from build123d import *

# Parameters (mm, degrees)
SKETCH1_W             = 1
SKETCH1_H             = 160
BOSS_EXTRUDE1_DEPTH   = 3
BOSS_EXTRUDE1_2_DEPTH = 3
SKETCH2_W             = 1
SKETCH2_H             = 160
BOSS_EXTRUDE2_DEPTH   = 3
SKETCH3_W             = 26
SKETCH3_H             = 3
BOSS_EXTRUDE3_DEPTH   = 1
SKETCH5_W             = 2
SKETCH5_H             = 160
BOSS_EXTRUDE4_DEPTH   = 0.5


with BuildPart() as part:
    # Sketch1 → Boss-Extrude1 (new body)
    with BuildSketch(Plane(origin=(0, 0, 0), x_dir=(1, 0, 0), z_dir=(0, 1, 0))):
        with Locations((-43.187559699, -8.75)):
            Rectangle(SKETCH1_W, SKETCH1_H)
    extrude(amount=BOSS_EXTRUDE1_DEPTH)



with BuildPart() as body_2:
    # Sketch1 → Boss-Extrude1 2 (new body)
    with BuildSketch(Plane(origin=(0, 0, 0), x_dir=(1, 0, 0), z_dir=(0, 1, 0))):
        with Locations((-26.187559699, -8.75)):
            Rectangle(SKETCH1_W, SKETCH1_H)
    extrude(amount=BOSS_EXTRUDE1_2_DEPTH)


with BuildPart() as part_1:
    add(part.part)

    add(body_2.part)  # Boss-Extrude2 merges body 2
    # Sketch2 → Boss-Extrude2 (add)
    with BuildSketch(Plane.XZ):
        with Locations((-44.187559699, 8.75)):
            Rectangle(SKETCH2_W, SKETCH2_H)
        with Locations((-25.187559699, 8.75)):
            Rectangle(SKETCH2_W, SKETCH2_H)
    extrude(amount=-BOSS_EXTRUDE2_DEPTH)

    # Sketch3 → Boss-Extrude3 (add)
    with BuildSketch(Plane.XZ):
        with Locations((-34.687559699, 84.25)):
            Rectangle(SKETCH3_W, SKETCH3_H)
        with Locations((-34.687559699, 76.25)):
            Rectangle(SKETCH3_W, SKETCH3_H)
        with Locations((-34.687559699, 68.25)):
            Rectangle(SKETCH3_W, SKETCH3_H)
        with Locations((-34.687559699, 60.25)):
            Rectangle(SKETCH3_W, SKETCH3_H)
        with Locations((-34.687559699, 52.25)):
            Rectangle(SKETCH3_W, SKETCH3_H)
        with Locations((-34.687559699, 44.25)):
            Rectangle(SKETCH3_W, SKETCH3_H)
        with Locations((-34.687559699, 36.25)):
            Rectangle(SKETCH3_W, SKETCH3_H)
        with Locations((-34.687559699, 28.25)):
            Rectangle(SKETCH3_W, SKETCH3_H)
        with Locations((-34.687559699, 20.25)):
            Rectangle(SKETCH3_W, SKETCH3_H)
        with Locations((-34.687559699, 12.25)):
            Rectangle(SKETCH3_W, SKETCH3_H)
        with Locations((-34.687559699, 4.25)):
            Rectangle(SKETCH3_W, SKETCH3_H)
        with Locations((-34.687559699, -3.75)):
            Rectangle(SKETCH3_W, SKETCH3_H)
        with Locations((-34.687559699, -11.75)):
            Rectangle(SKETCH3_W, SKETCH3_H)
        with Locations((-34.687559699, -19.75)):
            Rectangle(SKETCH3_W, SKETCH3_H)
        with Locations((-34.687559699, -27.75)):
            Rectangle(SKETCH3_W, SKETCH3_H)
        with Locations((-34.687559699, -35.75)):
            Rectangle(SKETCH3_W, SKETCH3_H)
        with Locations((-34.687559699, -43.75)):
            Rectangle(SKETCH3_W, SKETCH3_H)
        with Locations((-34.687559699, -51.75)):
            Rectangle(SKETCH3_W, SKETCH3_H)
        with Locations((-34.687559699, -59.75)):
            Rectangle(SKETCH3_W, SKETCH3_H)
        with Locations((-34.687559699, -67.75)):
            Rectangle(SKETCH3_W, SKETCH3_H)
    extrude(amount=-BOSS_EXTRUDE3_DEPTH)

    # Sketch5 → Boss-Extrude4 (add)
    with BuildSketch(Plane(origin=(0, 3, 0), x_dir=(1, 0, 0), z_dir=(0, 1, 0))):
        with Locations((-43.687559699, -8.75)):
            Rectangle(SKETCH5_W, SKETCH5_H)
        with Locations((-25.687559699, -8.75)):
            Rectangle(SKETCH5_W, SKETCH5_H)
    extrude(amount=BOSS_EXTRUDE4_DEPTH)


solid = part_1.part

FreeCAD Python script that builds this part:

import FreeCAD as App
import Part
import Sketcher
Q = App.Units.Quantity

doc = App.newDocument("Part")
body = doc.addObject("PartDesign::Body", "Body")

sketch1 = body.newObject("Sketcher::SketchObject", "Sketch")
sketch1.AttachmentSupport = (doc.getObject("XZ_Plane"), [""])
sketch1.MapMode = "FlatFace"
sketch1.addGeometry([
    Part.LineSegment(App.Vector(-43.7, -71.2, 0), App.Vector(-43.7, 88.8, 0)),
    Part.LineSegment(App.Vector(-43.7, 88.8, 0), App.Vector(-42.7, 88.8, 0)),
    Part.LineSegment(App.Vector(-42.7, 88.8, 0), App.Vector(-42.7, -71.2, 0)),
    Part.LineSegment(App.Vector(-42.7, -71.2, 0), App.Vector(-43.7, -71.2, 0)),
], False)
sketch1.addConstraint([
    Sketcher.Constraint("Coincident", 0, 2, 1, 1),
    Sketcher.Constraint("Coincident", 1, 2, 2, 1),
    Sketcher.Constraint("Coincident", 2, 2, 3, 1),
    Sketcher.Constraint("Coincident", 3, 2, 0, 1),
    Sketcher.Constraint("Vertical", 0),
    Sketcher.Constraint("Horizontal", 1),
    Sketcher.Constraint("Vertical", 2),
    Sketcher.Constraint("Horizontal", 3),
    Sketcher.Constraint("DistanceX", 1, 1, 1, 2, Q("1 mm")),
    Sketcher.Constraint("DistanceY", 0, 1, 0, 2, Q("160 mm")),
    Sketcher.Constraint("DistanceY", -1, 1, 0, 2, Q("88.75 mm")),
    Sketcher.Constraint("DistanceX", 0, 2, -1, 1, Q("43.68756 mm")),
])
pad1 = body.newObject("PartDesign::Pad", "Pad")
pad1.Profile = sketch1
pad1.Length = 3
pad1.Reversed = True
body2 = doc.addObject("PartDesign::Body", "Body001")

sketch2 = body2.newObject("Sketcher::SketchObject", "Sketch001")
sketch2.AttachmentSupport = (doc.getObject("XZ_Plane001"), [""])
sketch2.MapMode = "FlatFace"
sketch2.addGeometry([
    Part.LineSegment(App.Vector(-26.7, -71.2, 0), App.Vector(-26.7, 88.8, 0)),
    Part.LineSegment(App.Vector(-26.7, 88.8, 0), App.Vector(-25.7, 88.8, 0)),
    Part.LineSegment(App.Vector(-25.7, 88.8, 0), App.Vector(-25.7, -71.2, 0)),
    Part.LineSegment(App.Vector(-25.7, -71.2, 0), App.Vector(-26.7, -71.2, 0)),
], False)
sketch2.addConstraint([
    Sketcher.Constraint("Coincident", 0, 2, 1, 1),
    Sketcher.Constraint("Coincident", 1, 2, 2, 1),
    Sketcher.Constraint("Coincident", 2, 2, 3, 1),
    Sketcher.Constraint("Coincident", 3, 2, 0, 1),
    Sketcher.Constraint("Vertical", 0),
    Sketcher.Constraint("Horizontal", 1),
    Sketcher.Constraint("Vertical", 2),
    Sketcher.Constraint("Horizontal", 3),
    Sketcher.Constraint("DistanceX", 1, 1, 1, 2, Q("1 mm")),
    Sketcher.Constraint("DistanceY", 0, 1, 0, 2, Q("160 mm")),
    Sketcher.Constraint("DistanceY", -1, 1, 0, 2, Q("88.75 mm")),
    Sketcher.Constraint("DistanceX", 0, 2, -1, 1, Q("26.68756 mm")),
])
pad2 = body2.newObject("PartDesign::Pad", "Pad001")
pad2.Profile = sketch2
pad2.Length = 3
pad2.Reversed = True
body.AllowCompound = True
doc.recompute()

boolean = body.newObject("PartDesign::Boolean", "Boolean")
boolean.Type = "Fuse"
boolean.addObjects([body2])

sketch3 = body.newObject("Sketcher::SketchObject", "Sketch002")
sketch3.AttachmentSupport = (doc.getObject("XZ_Plane"), [""])
sketch3.MapMode = "FlatFace"
sketch3.addGeometry([
    Part.LineSegment(App.Vector(-44.7, 88.8, 0), App.Vector(-44.7, -71.2, 0)),
    Part.LineSegment(App.Vector(-44.7, -71.2, 0), App.Vector(-43.7, -71.2, 0)),
    Part.LineSegment(App.Vector(-43.7, -71.2, 0), App.Vector(-43.7, 88.8, 0)),
    Part.LineSegment(App.Vector(-43.7, 88.8, 0), App.Vector(-44.7, 88.8, 0)),
    Part.LineSegment(App.Vector(-25.7, 88.8, 0), App.Vector(-25.7, -71.2, 0)),
    Part.LineSegment(App.Vector(-25.7, -71.2, 0), App.Vector(-24.7, -71.2, 0)),
    Part.LineSegment(App.Vector(-24.7, -71.2, 0), App.Vector(-24.7, 88.8, 0)),
    Part.LineSegment(App.Vector(-24.7, 88.8, 0), App.Vector(-25.7, 88.8, 0)),
], False)
sketch3.addConstraint([
    Sketcher.Constraint("Coincident", 0, 2, 1, 1),
    Sketcher.Constraint("Coincident", 1, 2, 2, 1),
    Sketcher.Constraint("Coincident", 2, 2, 3, 1),
    Sketcher.Constraint("Coincident", 3, 2, 0, 1),
    Sketcher.Constraint("Coincident", 4, 2, 5, 1),
    Sketcher.Constraint("Coincident", 5, 2, 6, 1),
    Sketcher.Constraint("Coincident", 6, 2, 7, 1),
    Sketcher.Constraint("Coincident", 7, 2, 4, 1),
    Sketcher.Constraint("Vertical", 0),
    Sketcher.Constraint("Horizontal", 1),
    Sketcher.Constraint("Vertical", 2),
    Sketcher.Constraint("Horizontal", 3),
    Sketcher.Constraint("Vertical", 4),
    Sketcher.Constraint("Horizontal", 5),
    Sketcher.Constraint("Vertical", 6),
    Sketcher.Constraint("Horizontal", 7),
    Sketcher.Constraint("Horizontal", 1, 2, 4, 2),
    Sketcher.Constraint("Horizontal", 3, 2, 6, 2),
    Sketcher.Constraint("Equal", 3, 5),
    Sketcher.Constraint("DistanceX", 1, 1, 1, 2, Q("1 mm")),
    Sketcher.Constraint("DistanceY", 0, 2, 0, 1, Q("160 mm")),
    Sketcher.Constraint("DistanceX", 1, 2, 4, 2, Q("18 mm")),
    Sketcher.Constraint("DistanceY", 0, 2, -1, 1, Q("71.25 mm")),
    Sketcher.Constraint("DistanceX", 0, 2, -1, 1, Q("44.68756 mm")),
])
pad3 = body.newObject("PartDesign::Pad", "Pad002")
pad3.Profile = sketch3
pad3.Length = 3
pad3.Reversed = True

sketch4 = body.newObject("Sketcher::SketchObject", "Sketch003")
sketch4.AttachmentSupport = (doc.getObject("XZ_Plane"), [""])
sketch4.MapMode = "FlatFace"
sketch4.addGeometry([
    Part.LineSegment(App.Vector(-47.7, 85.8, 0), App.Vector(-47.7, 82.8, 0)),
    Part.LineSegment(App.Vector(-47.7, 82.8, 0), App.Vector(-21.7, 82.8, 0)),
    Part.LineSegment(App.Vector(-21.7, 82.8, 0), App.Vector(-21.7, 85.8, 0)),
    Part.LineSegment(App.Vector(-21.7, 85.8, 0), App.Vector(-47.7, 85.8, 0)),
    Part.LineSegment(App.Vector(-47.7, 77.8, 0), App.Vector(-47.7, 74.8, 0)),
    Part.LineSegment(App.Vector(-47.7, 74.8, 0), App.Vector(-21.7, 74.8, 0)),
    Part.LineSegment(App.Vector(-21.7, 74.8, 0), App.Vector(-21.7, 77.8, 0)),
    Part.LineSegment(App.Vector(-21.7, 77.8, 0), App.Vector(-47.7, 77.8, 0)),
    Part.LineSegment(App.Vector(-47.7, 69.8, 0), App.Vector(-47.7, 66.8, 0)),
    Part.LineSegment(App.Vector(-47.7, 66.8, 0), App.Vector(-21.7, 66.8, 0)),
    Part.LineSegment(App.Vector(-21.7, 66.8, 0), App.Vector(-21.7, 69.8, 0)),
    Part.LineSegment(App.Vector(-21.7, 69.8, 0), App.Vector(-47.7, 69.8, 0)),
    Part.LineSegment(App.Vector(-47.7, 61.8, 0), App.Vector(-47.7, 58.8, 0)),
    Part.LineSegment(App.Vector(-47.7, 58.8, 0), App.Vector(-21.7, 58.8, 0)),
    Part.LineSegment(App.Vector(-21.7, 58.8, 0), App.Vector(-21.7, 61.8, 0)),
    Part.LineSegment(App.Vector(-21.7, 61.8, 0), App.Vector(-47.7, 61.8, 0)),
    Part.LineSegment(App.Vector(-47.7, 53.8, 0), App.Vector(-47.7, 50.8, 0)),
    Part.LineSegment(App.Vector(-47.7, 50.8, 0), App.Vector(-21.7, 50.8, 0)),
    Part.LineSegment(App.Vector(-21.7, 50.8, 0), App.Vector(-21.7, 53.8, 0)),
    Part.LineSegment(App.Vector(-21.7, 53.8, 0), App.Vector(-47.7, 53.8, 0)),
    Part.LineSegment(App.Vector(-47.7, 45.8, 0), App.Vector(-47.7, 42.8, 0)),
    Part.LineSegment(App.Vector(-47.7, 42.8, 0), App.Vector(-21.7, 42.8, 0)),
    Part.LineSegment(App.Vector(-21.7, 42.8, 0), App.Vector(-21.7, 45.8, 0)),
    Part.LineSegment(App.Vector(-21.7, 45.8, 0), App.Vector(-47.7, 45.8, 0)),
    Part.LineSegment(App.Vector(-47.7, 37.8, 0), App.Vector(-47.7, 34.8, 0)),
    Part.LineSegment(App.Vector(-47.7, 34.8, 0), App.Vector(-21.7, 34.8, 0)),
    Part.LineSegment(App.Vector(-21.7, 34.8, 0), App.Vector(-21.7, 37.8, 0)),
    Part.LineSegment(App.Vector(-21.7, 37.8, 0), App.Vector(-47.7, 37.8, 0)),
    Part.LineSegment(App.Vector(-47.7, 29.8, 0), App.Vector(-47.7, 26.8, 0)),
    Part.LineSegment(App.Vector(-47.7, 26.8, 0), App.Vector(-21.7, 26.8, 0)),
    Part.LineSegment(App.Vector(-21.7, 26.8, 0), App.Vector(-21.7, 29.8, 0)),
    Part.LineSegment(App.Vector(-21.7, 29.8, 0), App.Vector(-47.7, 29.8, 0)),
    Part.LineSegment(App.Vector(-47.7, 21.8, 0), App.Vector(-47.7, 18.8, 0)),
    Part.LineSegment(App.Vector(-47.7, 18.8, 0), App.Vector(-21.7, 18.8, 0)),
    Part.LineSegment(App.Vector(-21.7, 18.8, 0), App.Vector(-21.7, 21.8, 0)),
    Part.LineSegment(App.Vector(-21.7, 21.8, 0), App.Vector(-47.7, 21.8, 0)),
    Part.LineSegment(App.Vector(-47.7, 13.8, 0), App.Vector(-47.7, 10.8, 0)),
    Part.LineSegment(App.Vector(-47.7, 10.8, 0), App.Vector(-21.7, 10.8, 0)),
    Part.LineSegment(App.Vector(-21.7, 10.8, 0), App.Vector(-21.7, 13.8, 0)),
    Part.LineSegment(App.Vector(-21.7, 13.8, 0), App.Vector(-47.7, 13.8, 0)),
    Part.LineSegment(App.Vector(-47.7, 5.8, 0), App.Vector(-47.7, 2.8, 0)),
    Part.LineSegment(App.Vector(-47.7, 2.8, 0), App.Vector(-21.7, 2.8, 0)),
    Part.LineSegment(App.Vector(-21.7, 2.8, 0), App.Vector(-21.7, 5.8, 0)),
    Part.LineSegment(App.Vector(-21.7, 5.8, 0), App.Vector(-47.7, 5.8, 0)),
    Part.LineSegment(App.Vector(-47.7, -2.2, 0), App.Vector(-47.7, -5.2, 0)),
    Part.LineSegment(App.Vector(-47.7, -5.2, 0), App.Vector(-21.7, -5.2, 0)),
    Part.LineSegment(App.Vector(-21.7, -5.2, 0), App.Vector(-21.7, -2.2, 0)),
    Part.LineSegment(App.Vector(-21.7, -2.2, 0), App.Vector(-47.7, -2.2, 0)),
    Part.LineSegment(App.Vector(-47.7, -10.2, 0), App.Vector(-47.7, -13.2, 0)),
    Part.LineSegment(App.Vector(-47.7, -13.2, 0), App.Vector(-21.7, -13.2, 0)),
    Part.LineSegment(App.Vector(-21.7, -13.2, 0), App.Vector(-21.7, -10.2, 0)),
    Part.LineSegment(App.Vector(-21.7, -10.2, 0), App.Vector(-47.7, -10.2, 0)),
    Part.LineSegment(App.Vector(-47.7, -18.2, 0), App.Vector(-47.7, -21.2, 0)),
    Part.LineSegment(App.Vector(-47.7, -21.2, 0), App.Vector(-21.7, -21.2, 0)),
    Part.LineSegment(App.Vector(-21.7, -21.2, 0), App.Vector(-21.7, -18.2, 0)),
    Part.LineSegment(App.Vector(-21.7, -18.2, 0), App.Vector(-47.7, -18.2, 0)),
    Part.LineSegment(App.Vector(-47.7, -26.2, 0), App.Vector(-47.7, -29.2, 0)),
    Part.LineSegment(App.Vector(-47.7, -29.2, 0), App.Vector(-21.7, -29.2, 0)),
    Part.LineSegment(App.Vector(-21.7, -29.2, 0), App.Vector(-21.7, -26.2, 0)),
    Part.LineSegment(App.Vector(-21.7, -26.2, 0), App.Vector(-47.7, -26.2, 0)),
    Part.LineSegment(App.Vector(-47.7, -34.2, 0), App.Vector(-47.7, -37.2, 0)),
    Part.LineSegment(App.Vector(-47.7, -37.2, 0), App.Vector(-21.7, -37.2, 0)),
    Part.LineSegment(App.Vector(-21.7, -37.2, 0), App.Vector(-21.7, -34.2, 0)),
    Part.LineSegment(App.Vector(-21.7, -34.2, 0), App.Vector(-47.7, -34.2, 0)),
    Part.LineSegment(App.Vector(-47.7, -42.2, 0), App.Vector(-47.7, -45.2, 0)),
    Part.LineSegment(App.Vector(-47.7, -45.2, 0), App.Vector(-21.7, -45.2, 0)),
    Part.LineSegment(App.Vector(-21.7, -45.2, 0), App.Vector(-21.7, -42.2, 0)),
    Part.LineSegment(App.Vector(-21.7, -42.2, 0), App.Vector(-47.7, -42.2, 0)),
    Part.LineSegment(App.Vector(-47.7, -50.2, 0), App.Vector(-47.7, -53.2, 0)),
    Part.LineSegment(App.Vector(-47.7, -53.2, 0), App.Vector(-21.7, -53.2, 0)),
    Part.LineSegment(App.Vector(-21.7, -53.2, 0), App.Vector(-21.7, -50.2, 0)),
    Part.LineSegment(App.Vector(-21.7, -50.2, 0), App.Vector(-47.7, -50.2, 0)),
    Part.LineSegment(App.Vector(-47.7, -58.2, 0), App.Vector(-47.7, -61.2, 0)),
    Part.LineSegment(App.Vector(-47.7, -61.2, 0), App.Vector(-21.7, -61.2, 0)),
    Part.LineSegment(App.Vector(-21.7, -61.2, 0), App.Vector(-21.7, -58.2, 0)),
    Part.LineSegment(App.Vector(-21.7, -58.2, 0), App.Vector(-47.7, -58.2, 0)),
    Part.LineSegment(App.Vector(-47.7, -66.2, 0), App.Vector(-47.7, -69.2, 0)),
    Part.LineSegment(App.Vector(-47.7, -69.2, 0), App.Vector(-21.7, -69.2, 0)),
    Part.LineSegment(App.Vector(-21.7, -69.2, 0), App.Vector(-21.7, -66.2, 0)),
    Part.LineSegment(App.Vector(-21.7, -66.2, 0), App.Vector(-47.7, -66.2, 0)),
], False)
sketch4.addConstraint([
    Sketcher.Constraint("Coincident", 0, 2, 1, 1),
    Sketcher.Constraint("Coincident", 1, 2, 2, 1),
    Sketcher.Constraint("Coincident", 2, 2, 3, 1),
    Sketcher.Constraint("Coincident", 3, 2, 0, 1),
    Sketcher.Constraint("Coincident", 4, 2, 5, 1),
    Sketcher.Constraint("Coincident", 5, 2, 6, 1),
    Sketcher.Constraint("Coincident", 6, 2, 7, 1),
    Sketcher.Constraint("Coincident", 7, 2, 4, 1),
    Sketcher.Constraint("Coincident", 8, 2, 9, 1),
    Sketcher.Constraint("Coincident", 9, 2, 10, 1),
    Sketcher.Constraint("Coincident", 10, 2, 11, 1),
    Sketcher.Constraint("Coincident", 11, 2, 8, 1),
    Sketcher.Constraint("Coincident", 12, 2, 13, 1),
    Sketcher.Constraint("Coincident", 13, 2, 14, 1),
    Sketcher.Constraint("Coincident", 14, 2, 15, 1),
    Sketcher.Constraint("Coincident", 15, 2, 12, 1),
    Sketcher.Constraint("Coincident", 16, 2, 17, 1),
    Sketcher.Constraint("Coincident", 17, 2, 18, 1),
    Sketcher.Constraint("Coincident", 18, 2, 19, 1),
    Sketcher.Constraint("Coincident", 19, 2, 16, 1),
    Sketcher.Constraint("Coincident", 20, 2, 21, 1),
    Sketcher.Constraint("Coincident", 21, 2, 22, 1),
    Sketcher.Constraint("Coincident", 22, 2, 23, 1),
    Sketcher.Constraint("Coincident", 23, 2, 20, 1),
    Sketcher.Constraint("Coincident", 24, 2, 25, 1),
    Sketcher.Constraint("Coincident", 25, 2, 26, 1),
    Sketcher.Constraint("Coincident", 26, 2, 27, 1),
    Sketcher.Constraint("Coincident", 27, 2, 24, 1),
    Sketcher.Constraint("Coincident", 28, 2, 29, 1),
    Sketcher.Constraint("Coincident", 29, 2, 30, 1),
    Sketcher.Constraint("Coincident", 30, 2, 31, 1),
    Sketcher.Constraint("Coincident", 31, 2, 28, 1),
    Sketcher.Constraint("Coincident", 32, 2, 33, 1),
    Sketcher.Constraint("Coincident", 33, 2, 34, 1),
    Sketcher.Constraint("Coincident", 34, 2, 35, 1),
    Sketcher.Constraint("Coincident", 35, 2, 32, 1),
    Sketcher.Constraint("Coincident", 36, 2, 37, 1),
    Sketcher.Constraint("Coincident", 37, 2, 38, 1),
    Sketcher.Constraint("Coincident", 38, 2, 39, 1),
    Sketcher.Constraint("Coincident", 39, 2, 36, 1),
    Sketcher.Constraint("Coincident", 40, 2, 41, 1),
    Sketcher.Constraint("Coincident", 41, 2, 42, 1),
    Sketcher.Constraint("Coincident", 42, 2, 43, 1),
    Sketcher.Constraint("Coincident", 43, 2, 40, 1),
    Sketcher.Constraint("Coincident", 44, 2, 45, 1),
    Sketcher.Constraint("Coincident", 45, 2, 46, 1),
    Sketcher.Constraint("Coincident", 46, 2, 47, 1),
    Sketcher.Constraint("Coincident", 47, 2, 44, 1),
    Sketcher.Constraint("Coincident", 48, 2, 49, 1),
    Sketcher.Constraint("Coincident", 49, 2, 50, 1),
    Sketcher.Constraint("Coincident", 50, 2, 51, 1),
    Sketcher.Constraint("Coincident", 51, 2, 48, 1),
    Sketcher.Constraint("Coincident", 52, 2, 53, 1),
    Sketcher.Constraint("Coincident", 53, 2, 54, 1),
    Sketcher.Constraint("Coincident", 54, 2, 55, 1),
    Sketcher.Constraint("Coincident", 55, 2, 52, 1),
    Sketcher.Constraint("Coincident", 56, 2, 57, 1),
    Sketcher.Constraint("Coincident", 57, 2, 58, 1),
    Sketcher.Constraint("Coincident", 58, 2, 59, 1),
    Sketcher.Constraint("Coincident", 59, 2, 56, 1),
    Sketcher.Constraint("Coincident", 60, 2, 61, 1),
    Sketcher.Constraint("Coincident", 61, 2, 62, 1),
    Sketcher.Constraint("Coincident", 62, 2, 63, 1),
    Sketcher.Constraint("Coincident", 63, 2, 60, 1),
    Sketcher.Constraint("Coincident", 64, 2, 65, 1),
    Sketcher.Constraint("Coincident", 65, 2, 66, 1),
    Sketcher.Constraint("Coincident", 66, 2, 67, 1),
    Sketcher.Constraint("Coincident", 67, 2, 64, 1),
    Sketcher.Constraint("Coincident", 68, 2, 69, 1),
    Sketcher.Constraint("Coincident", 69, 2, 70, 1),
    Sketcher.Constraint("Coincident", 70, 2, 71, 1),
    Sketcher.Constraint("Coincident", 71, 2, 68, 1),
    Sketcher.Constraint("Coincident", 72, 2, 73, 1),
    Sketcher.Constraint("Coincident", 73, 2, 74, 1),
    Sketcher.Constraint("Coincident", 74, 2, 75, 1),
    Sketcher.Constraint("Coincident", 75, 2, 72, 1),
    Sketcher.Constraint("Coincident", 76, 2, 77, 1),
    Sketcher.Constraint("Coincident", 77, 2, 78, 1),
    Sketcher.Constraint("Coincident", 78, 2, 79, 1),
    Sketcher.Constraint("Coincident", 79, 2, 76, 1),
    Sketcher.Constraint("Vertical", 0),
    Sketcher.Constraint("Horizontal", 1),
    Sketcher.Constraint("Vertical", 2),
    Sketcher.Constraint("Horizontal", 3),
    Sketcher.Constraint("Vertical", 4),
    Sketcher.Constraint("Horizontal", 5),
    Sketcher.Constraint("Vertical", 6),
    Sketcher.Constraint("Horizontal", 7),
    Sketcher.Constraint("Vertical", 8),
    Sketcher.Constraint("Horizontal", 9),
    Sketcher.Constraint("Vertical", 10),
    Sketcher.Constraint("Horizontal", 11),
    Sketcher.Constraint("Vertical", 12),
    Sketcher.Constraint("Horizontal", 13),
    Sketcher.Constraint("Vertical", 14),
    Sketcher.Constraint("Horizontal", 15),
    Sketcher.Constraint("Vertical", 16),
    Sketcher.Constraint("Horizontal", 17),
    Sketcher.Constraint("Vertical", 18),
    Sketcher.Constraint("Horizontal", 19),
    Sketcher.Constraint("Vertical", 20),
    Sketcher.Constraint("Horizontal", 21),
    Sketcher.Constraint("Vertical", 22),
    Sketcher.Constraint("Horizontal", 23),
    Sketcher.Constraint("Vertical", 24),
    Sketcher.Constraint("Horizontal", 25),
    Sketcher.Constraint("Vertical", 26),
    Sketcher.Constraint("Horizontal", 27),
    Sketcher.Constraint("Vertical", 28),
    Sketcher.Constraint("Horizontal", 29),
    Sketcher.Constraint("Vertical", 30),
    Sketcher.Constraint("Horizontal", 31),
    Sketcher.Constraint("Vertical", 32),
    Sketcher.Constraint("Horizontal", 33),
    Sketcher.Constraint("Vertical", 34),
    Sketcher.Constraint("Horizontal", 35),
    Sketcher.Constraint("Vertical", 36),
    Sketcher.Constraint("Horizontal", 37),
    Sketcher.Constraint("Vertical", 38),
    Sketcher.Constraint("Horizontal", 39),
    Sketcher.Constraint("Vertical", 40),
    Sketcher.Constraint("Horizontal", 41),
    Sketcher.Constraint("Vertical", 42),
    Sketcher.Constraint("Horizontal", 43),
    Sketcher.Constraint("Vertical", 44),
    Sketcher.Constraint("Horizontal", 45),
    Sketcher.Constraint("Vertical", 46),
    Sketcher.Constraint("Horizontal", 47),
    Sketcher.Constraint("Vertical", 48),
    Sketcher.Constraint("Horizontal", 49),
    Sketcher.Constraint("Vertical", 50),
    Sketcher.Constraint("Horizontal", 51),
    Sketcher.Constraint("Vertical", 52),
    Sketcher.Constraint("Horizontal", 53),
    Sketcher.Constraint("Vertical", 54),
    Sketcher.Constraint("Horizontal", 55),
    Sketcher.Constraint("Vertical", 56),
    Sketcher.Constraint("Horizontal", 57),
    Sketcher.Constraint("Vertical", 58),
    Sketcher.Constraint("Horizontal", 59),
    Sketcher.Constraint("Vertical", 60),
    Sketcher.Constraint("Horizontal", 61),
    Sketcher.Constraint("Vertical", 62),
    Sketcher.Constraint("Horizontal", 63),
    Sketcher.Constraint("Vertical", 64),
    Sketcher.Constraint("Horizontal", 65),
    Sketcher.Constraint("Vertical", 66),
    Sketcher.Constraint("Horizontal", 67),
    Sketcher.Constraint("Vertical", 68),
    Sketcher.Constraint("Horizontal", 69),
    Sketcher.Constraint("Vertical", 70),
    Sketcher.Constraint("Horizontal", 71),
    Sketcher.Constraint("Vertical", 72),
    Sketcher.Constraint("Horizontal", 73),
    Sketcher.Constraint("Vertical", 74),
    Sketcher.Constraint("Horizontal", 75),
    Sketcher.Constraint("Vertical", 76),
    Sketcher.Constraint("Horizontal", 77),
    Sketcher.Constraint("Vertical", 78),
    Sketcher.Constraint("Horizontal", 79),
    Sketcher.Constraint("Vertical", 3, 2, 4, 2),
    Sketcher.Constraint("Vertical", 2, 2, 5, 2),
    Sketcher.Constraint("Vertical", 7, 2, 8, 2),
    Sketcher.Constraint("Vertical", 6, 2, 9, 2),
    Sketcher.Constraint("Vertical", 11, 2, 12, 2),
    Sketcher.Constraint("Vertical", 10, 2, 13, 2),
    Sketcher.Constraint("Vertical", 15, 2, 16, 2),
    Sketcher.Constraint("Vertical", 14, 2, 17, 2),
    Sketcher.Constraint("Vertical", 19, 2, 20, 2),
    Sketcher.Constraint("Vertical", 18, 2, 21, 2),
    Sketcher.Constraint("Vertical", 23, 2, 24, 2),
    Sketcher.Constraint("Vertical", 22, 2, 25, 2),
    Sketcher.Constraint("Vertical", 27, 2, 28, 2),
    Sketcher.Constraint("Vertical", 26, 2, 29, 2),
    Sketcher.Constraint("Vertical", 31, 2, 32, 2),
    Sketcher.Constraint("Vertical", 30, 2, 33, 2),
    Sketcher.Constraint("Vertical", 35, 2, 36, 2),
    Sketcher.Constraint("Vertical", 34, 2, 37, 2),
    Sketcher.Constraint("Vertical", 39, 2, 40, 2),
    Sketcher.Constraint("Vertical", 38, 2, 41, 2),
    Sketcher.Constraint("Vertical", 43, 2, 44, 2),
    Sketcher.Constraint("Vertical", 42, 2, 45, 2),
    Sketcher.Constraint("Vertical", 47, 2, 48, 2),
    Sketcher.Constraint("Vertical", 46, 2, 49, 2),
    Sketcher.Constraint("Vertical", 51, 2, 52, 2),
    Sketcher.Constraint("Vertical", 50, 2, 53, 2),
    Sketcher.Constraint("Vertical", 55, 2, 56, 2),
    Sketcher.Constraint("Vertical", 54, 2, 57, 2),
    Sketcher.Constraint("Vertical", 59, 2, 60, 2),
    Sketcher.Constraint("Vertical", 58, 2, 61, 2),
    Sketcher.Constraint("Vertical", 63, 2, 64, 2),
    Sketcher.Constraint("Vertical", 62, 2, 65, 2),
    Sketcher.Constraint("Vertical", 67, 2, 68, 2),
    Sketcher.Constraint("Vertical", 66, 2, 69, 2),
    Sketcher.Constraint("Vertical", 71, 2, 72, 2),
    Sketcher.Constraint("Vertical", 70, 2, 73, 2),
    Sketcher.Constraint("Vertical", 75, 2, 76, 2),
    Sketcher.Constraint("Vertical", 74, 2, 77, 2),
    Sketcher.Constraint("Equal", 2, 4),
    Sketcher.Constraint("Equal", 6, 8),
    Sketcher.Constraint("Equal", 10, 12),
    Sketcher.Constraint("Equal", 14, 16),
    Sketcher.Constraint("Equal", 18, 20),
    Sketcher.Constraint("Equal", 22, 24),
    Sketcher.Constraint("Equal", 26, 28),
    Sketcher.Constraint("Equal", 30, 32),
    Sketcher.Constraint("Equal", 34, 36),
    Sketcher.Constraint("Equal", 38, 40),
    Sketcher.Constraint("Equal", 42, 44),
    Sketcher.Constraint("Equal", 46, 48),
    Sketcher.Constraint("Equal", 50, 52),
    Sketcher.Constraint("Equal", 54, 56),
    Sketcher.Constraint("Equal", 58, 60),
    Sketcher.Constraint("Equal", 62, 64),
    Sketcher.Constraint("Equal", 66, 68),
    Sketcher.Constraint("Equal", 70, 72),
    Sketcher.Constraint("Equal", 74, 76),
    Sketcher.Constraint("DistanceX", 1, 1, 1, 2, Q("26 mm")),
    Sketcher.Constraint("DistanceY", 0, 2, 0, 1, Q("3 mm")),
    Sketcher.Constraint("DistanceY", -1, 1, 0, 2, Q("82.75 mm")),
    Sketcher.Constraint("DistanceY", -1, 1, 4, 2, Q("74.75 mm")),
    Sketcher.Constraint("DistanceY", -1, 1, 8, 2, Q("66.75 mm")),
    Sketcher.Constraint("DistanceY", -1, 1, 12, 2, Q("58.75 mm")),
    Sketcher.Constraint("DistanceY", -1, 1, 16, 2, Q("50.75 mm")),
    Sketcher.Constraint("DistanceY", -1, 1, 20, 2, Q("42.75 mm")),
    Sketcher.Constraint("DistanceY", -1, 1, 24, 2, Q("34.75 mm")),
    Sketcher.Constraint("DistanceY", -1, 1, 28, 2, Q("26.75 mm")),
    Sketcher.Constraint("DistanceY", -1, 1, 32, 2, Q("18.75 mm")),
    Sketcher.Constraint("DistanceY", -1, 1, 36, 2, Q("10.75 mm")),
    Sketcher.Constraint("DistanceY", -1, 1, 40, 2, Q("2.75 mm")),
    Sketcher.Constraint("DistanceY", 44, 2, -1, 1, Q("5.25 mm")),
    Sketcher.Constraint("DistanceY", 48, 2, -1, 1, Q("13.25 mm")),
    Sketcher.Constraint("DistanceY", 52, 2, -1, 1, Q("21.25 mm")),
    Sketcher.Constraint("DistanceY", 56, 2, -1, 1, Q("29.25 mm")),
    Sketcher.Constraint("DistanceY", 60, 2, -1, 1, Q("37.25 mm")),
    Sketcher.Constraint("DistanceY", 64, 2, -1, 1, Q("45.25 mm")),
    Sketcher.Constraint("DistanceY", 68, 2, -1, 1, Q("53.25 mm")),
    Sketcher.Constraint("DistanceY", 72, 2, -1, 1, Q("61.25 mm")),
    Sketcher.Constraint("DistanceY", 76, 2, -1, 1, Q("69.25 mm")),
    Sketcher.Constraint("DistanceX", 0, 2, -1, 1, Q("47.68756 mm")),
])
pad4 = body.newObject("PartDesign::Pad", "Pad003")
pad4.Profile = sketch4
pad4.Length = 1
pad4.Reversed = True

sketch5 = body.newObject("Sketcher::SketchObject", "Sketch004")
sketch5.AttachmentSupport = (doc.getObject("XZ_Plane"), [""])
sketch5.MapMode = "FlatFace"
sketch5.AttachmentOffset = App.Placement(App.Vector(0, 0, -3), App.Rotation())
sketch5.addGeometry([
    Part.LineSegment(App.Vector(-44.7, -71.2, 0), App.Vector(-44.7, 88.8, 0)),
    Part.LineSegment(App.Vector(-44.7, 88.8, 0), App.Vector(-42.7, 88.8, 0)),
    Part.LineSegment(App.Vector(-42.7, 88.8, 0), App.Vector(-42.7, -71.2, 0)),
    Part.LineSegment(App.Vector(-42.7, -71.2, 0), App.Vector(-44.7, -71.2, 0)),
    Part.LineSegment(App.Vector(-26.7, -71.2, 0), App.Vector(-26.7, 88.8, 0)),
    Part.LineSegment(App.Vector(-26.7, 88.8, 0), App.Vector(-24.7, 88.8, 0)),
    Part.LineSegment(App.Vector(-24.7, 88.8, 0), App.Vector(-24.7, -71.2, 0)),
    Part.LineSegment(App.Vector(-24.7, -71.2, 0), App.Vector(-26.7, -71.2, 0)),
], False)
sketch5.addConstraint([
    Sketcher.Constraint("Coincident", 0, 2, 1, 1),
    Sketcher.Constraint("Coincident", 1, 2, 2, 1),
    Sketcher.Constraint("Coincident", 2, 2, 3, 1),
    Sketcher.Constraint("Coincident", 3, 2, 0, 1),
    Sketcher.Constraint("Coincident", 4, 2, 5, 1),
    Sketcher.Constraint("Coincident", 5, 2, 6, 1),
    Sketcher.Constraint("Coincident", 6, 2, 7, 1),
    Sketcher.Constraint("Coincident", 7, 2, 4, 1),
    Sketcher.Constraint("Vertical", 0),
    Sketcher.Constraint("Horizontal", 1),
    Sketcher.Constraint("Vertical", 2),
    Sketcher.Constraint("Horizontal", 3),
    Sketcher.Constraint("Vertical", 4),
    Sketcher.Constraint("Horizontal", 5),
    Sketcher.Constraint("Vertical", 6),
    Sketcher.Constraint("Horizontal", 7),
    Sketcher.Constraint("Horizontal", 1, 2, 4, 2),
    Sketcher.Constraint("Horizontal", 3, 2, 6, 2),
    Sketcher.Constraint("Equal", 3, 5),
    Sketcher.Constraint("DistanceX", 1, 1, 1, 2, Q("2 mm")),
    Sketcher.Constraint("DistanceY", 0, 1, 0, 2, Q("160 mm")),
    Sketcher.Constraint("DistanceX", 1, 2, 4, 2, Q("16 mm")),
    Sketcher.Constraint("DistanceY", -1, 1, 0, 2, Q("88.75 mm")),
    Sketcher.Constraint("DistanceX", 0, 2, -1, 1, Q("44.68756 mm")),
])
pad5 = body.newObject("PartDesign::Pad", "Pad004")
pad5.Profile = sketch5
pad5.Length = 0.5
pad5.Reversed = True

doc.recompute()
